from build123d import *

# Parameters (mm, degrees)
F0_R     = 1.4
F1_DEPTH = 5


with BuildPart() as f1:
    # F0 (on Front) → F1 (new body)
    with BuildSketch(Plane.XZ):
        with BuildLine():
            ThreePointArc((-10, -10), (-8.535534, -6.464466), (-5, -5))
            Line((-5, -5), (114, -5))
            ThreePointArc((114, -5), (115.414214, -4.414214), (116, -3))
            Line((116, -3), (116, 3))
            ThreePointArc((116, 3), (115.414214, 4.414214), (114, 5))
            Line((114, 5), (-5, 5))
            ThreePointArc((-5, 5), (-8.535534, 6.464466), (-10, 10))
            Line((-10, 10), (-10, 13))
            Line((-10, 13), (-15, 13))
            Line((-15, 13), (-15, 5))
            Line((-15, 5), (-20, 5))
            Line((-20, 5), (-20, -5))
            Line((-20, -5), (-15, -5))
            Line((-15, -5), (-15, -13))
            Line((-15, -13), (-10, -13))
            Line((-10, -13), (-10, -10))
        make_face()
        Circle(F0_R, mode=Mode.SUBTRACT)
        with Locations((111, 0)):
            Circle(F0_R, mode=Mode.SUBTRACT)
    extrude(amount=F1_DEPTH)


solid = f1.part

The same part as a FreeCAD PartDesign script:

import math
import FreeCAD as App
import Part
import Sketcher
from FreeCAD import Vector

doc = App.newDocument("Part")
body = doc.addObject("PartDesign::Body", "Body")

# Sketch on XZ plane
sketch1 = body.newObject("Sketcher::SketchObject", "Sketch")
sketch1.AttachmentSupport = (doc.getObject("XZ_Plane"), [""])
sketch1.MapMode = "FlatFace"
sketch1.addGeometry(Part.ArcOfCircle(Part.Circle(Vector(-5, -10, 0), Vector(0, 0, 1), 5), math.radians(90), math.radians(180)), False)
sketch1.addGeometry(Part.LineSegment(Vector(-5, -5, 0), Vector(114, -5, 0)), False)
sketch1.addGeometry(Part.ArcOfCircle(Part.Circle(Vector(114, -3, 0), Vector(0, 0, 1), 2), math.radians(-90), math.radians(0)), False)
sketch1.addGeometry(Part.LineSegment(Vector(116, -3, 0), Vector(116, 3, 0)), False)
sketch1.addGeometry(Part.ArcOfCircle(Part.Circle(Vector(114, 3, 0), Vector(0, 0, 1), 2), math.radians(0), math.radians(90)), False)
sketch1.addGeometry(Part.LineSegment(Vector(114, 5, 0), Vector(-5, 5, 0)), False)
sketch1.addGeometry(Part.ArcOfCircle(Part.Circle(Vector(-5, 10, 0), Vector(0, 0, 1), 5), math.radians(180), math.radians(270)), False)
sketch1.addGeometry(Part.LineSegment(Vector(-10, 10, 0), Vector(-10, 13, 0)), False)
sketch1.addGeometry(Part.LineSegment(Vector(-10, 13, 0), Vector(-15, 13, 0)), False)
sketch1.addGeometry(Part.LineSegment(Vector(-15, 13, 0), Vector(-15, 5, 0)), False)
sketch1.addGeometry(Part.LineSegment(Vector(-15, 5, 0), Vector(-20, 5, 0)), False)
sketch1.addGeometry(Part.LineSegment(Vector(-20, 5, 0), Vector(-20, -5, 0)), False)
sketch1.addGeometry(Part.LineSegment(Vector(-20, -5, 0), Vector(-15, -5, 0)), False)
sketch1.addGeometry(Part.LineSegment(Vector(-15, -5, 0), Vector(-15, -13, 0)), False)
sketch1.addGeometry(Part.LineSegment(Vector(-15, -13, 0), Vector(-10, -13, 0)), False)
sketch1.addGeometry(Part.LineSegment(Vector(-10, -13, 0), Vector(-10, -10, 0)), False)
sketch1.addGeometry(Part.Circle(Vector(0, 0, 0), Vector(0, 0, 1), 1.4), False)
sketch1.addGeometry(Part.Circle(Vector(111, 0, 0), Vector(0, 0, 1), 1.4), False)
sketch1.addConstraint(Sketcher.Constraint("Tangent", 0, 1, 1, 1))
sketch1.addConstraint(Sketcher.Constraint("Tangent", 1, 2, 2, 1))
sketch1.addConstraint(Sketcher.Constraint("Tangent", 2, 2, 3, 1))
sketch1.addConstraint(Sketcher.Constraint("Tangent", 3, 2, 4, 1))
sketch1.addConstraint(Sketcher.Constraint("Tangent", 4, 2, 5, 1))
sketch1.addConstraint(Sketcher.Constraint("Tangent", 5, 2, 6, 2))
sketch1.addConstraint(Sketcher.Constraint("Tangent", 6, 1, 7, 1))
sketch1.addConstraint(Sketcher.Constraint("Coincident", 7, 2, 8, 1))
sketch1.addConstraint(Sketcher.Constraint("Coincident", 8, 2, 9, 1))
sketch1.addConstraint(Sketcher.Constraint("Coincident", 9, 2, 10, 1))
sketch1.addConstraint(Sketcher.Constraint("Coincident", 10, 2, 11, 1))
sketch1.addConstraint(Sketcher.Constraint("Coincident", 11, 2, 12, 1))
sketch1.addConstraint(Sketcher.Constraint("Coincident", 12, 2, 13, 1))
sketch1.addConstraint(Sketcher.Constraint("Coincident", 13, 2, 14, 1))
sketch1.addConstraint(Sketcher.Constraint("Coincident", 14, 2, 15, 1))
sketch1.addConstraint(Sketcher.Constraint("Tangent", 15, 2, 0, 2))
sketch1.addConstraint(Sketcher.Constraint("Horizontal", 1))
sketch1.addConstraint(Sketcher.Constraint("Vertical", 3))
sketch1.addConstraint(Sketcher.Constraint("Horizontal", 5))
sketch1.addConstraint(Sketcher.Constraint("Vertical", 7))
sketch1.addConstraint(Sketcher.Constraint("Horizontal", 8))
sketch1.addConstraint(Sketcher.Constraint("Vertical", 9))
sketch1.addConstraint(Sketcher.Constraint("Horizontal", 10))
sketch1.addConstraint(Sketcher.Constraint("Vertical", 11))
sketch1.addConstraint(Sketcher.Constraint("Horizontal", 12))
sketch1.addConstraint(Sketcher.Constraint("Vertical", 13))
sketch1.addConstraint(Sketcher.Constraint("Horizontal", 14))
sketch1.addConstraint(Sketcher.Constraint("Vertical", 15))
sketch1.addConstraint(Sketcher.Constraint("Coincident", 16, 3, -1, 1))
sketch1.addConstraint(Sketcher.Constraint("Equal", 2, 4))
sketch1.addConstraint(Sketcher.Constraint("Equal", 0, 6))
sketch1.addConstraint(Sketcher.Constraint("Equal", 16, 17))
sketch1.addConstraint(Sketcher.Constraint("Symmetric", 0, 3, 6, 3, -1))
sketch1.addConstraint(Sketcher.Constraint("Symmetric", 9, 2, 12, 2, -1))
sketch1.addConstraint(Sketcher.Constraint("PointOnObject", 17, 3, -1))
sketch1.addConstraint(Sketcher.Constraint("Horizontal", 5, 2, 9, 2))
sketch1.addConstraint(Sketcher.Constraint("Equal", 8, 10))
sketch1.addConstraint(Sketcher.Constraint("Equal", 9, 13))
sketch1.addConstraint(Sketcher.Constraint("Radius", 0, 5.0))
sketch1.addConstraint(Sketcher.Constraint("Radius", 2, 1.999999))
sketch1.addConstraint(Sketcher.Constraint("Diameter", 16, 2.8))
sketch1.addConstraint(Sketcher.Constraint("DistanceX", 1, 1, 1, 2, 119.0))
sketch1.addConstraint(Sketcher.Constraint("DistanceX", 8, 2, 8, 1, 5.0))
sketch1.addConstraint(Sketcher.Constraint("DistanceY", 3, 1, 3, 2, 6.0))
sketch1.addConstraint(Sketcher.Constraint("DistanceY", 7, 1, 7, 2, 3.0))
sketch1.addConstraint(Sketcher.Constraint("DistanceX", 0, 3, -1, 1, 5.0))
sketch1.addConstraint(Sketcher.Constraint("DistanceX", -1, 1, 17, 3, 111.0))
pad1 = body.newObject("PartDesign::Pad", "Pad")
pad1.Profile = sketch1
pad1.Length = 5

doc.recompute()
